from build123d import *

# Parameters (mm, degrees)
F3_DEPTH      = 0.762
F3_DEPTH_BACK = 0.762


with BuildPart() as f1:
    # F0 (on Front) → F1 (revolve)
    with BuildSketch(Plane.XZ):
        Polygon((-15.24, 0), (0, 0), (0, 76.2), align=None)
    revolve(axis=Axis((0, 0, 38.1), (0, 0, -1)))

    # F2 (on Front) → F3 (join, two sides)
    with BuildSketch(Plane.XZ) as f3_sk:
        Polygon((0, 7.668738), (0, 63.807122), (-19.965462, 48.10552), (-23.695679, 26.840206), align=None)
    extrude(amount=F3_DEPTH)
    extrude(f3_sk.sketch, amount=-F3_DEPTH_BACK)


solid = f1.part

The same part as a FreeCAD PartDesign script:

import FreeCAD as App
import Part
import Sketcher

V = App.Vector
Q = App.Units.Quantity


def add_polygon(sketch, points):
    """Adds a closed chain of lines whose ends are joined by coincident constraints."""
    first, n = sketch.GeometryCount, len(points)
    for a, b in zip(points, points[1:] + points[:1]):
        sketch.addGeometry(Part.LineSegment(App.Vector(*a, 0), App.Vector(*b, 0)), False)
    for i in range(n):
        sketch.addConstraint(Sketcher.Constraint("Coincident", first + i, 2, first + (i + 1) % n, 1))

doc = App.newDocument("Part")
body = doc.addObject("PartDesign::Body", "Body")

# Sketch on XZ plane
sketch1 = doc.addObject("Sketcher::SketchObject", "Sketch")
body.addObject(sketch1)
sketch1.AttachmentSupport = (doc.XZ_Plane, [""])
sketch1.MapMode = "FlatFace"
add_polygon(sketch1, [(-15, 0), (0, 0), (0, 76)])  # lines 0-2
sketch1.addConstraint([
    Sketcher.Constraint("Horizontal", 0),
    Sketcher.Constraint("Vertical", 1),
    Sketcher.Constraint("Coincident", 0, 2, -1, 1),
    Sketcher.Constraint("DistanceY", 1, 1, 1, 2, Q("3 in")),
    Sketcher.Constraint("DistanceX", 0, 1, 0, 2, Q("0.6 in")),
])
revolution = doc.addObject("PartDesign::Revolution", "Revolution")
body.addObject(revolution)
revolution.Profile = sketch1
revolution.ReferenceAxis = (sketch1, ["V_Axis"])
revolution.Angle = 360

# Sketch on XZ plane
sketch2 = doc.addObject("Sketcher::SketchObject", "Sketch001")
body.addObject(sketch2)
sketch2.AttachmentSupport = (doc.XZ_Plane, [""])
sketch2.MapMode = "FlatFace"
add_polygon(sketch2, [(0, 8), (0, 64), (-20, 48), (-24, 27)])  # lines 0-3
sketch2.addConstraint([
    Sketcher.Constraint("Vertical", 0),
    Sketcher.Constraint("PointOnObject", 0, 2, -2),
    Sketcher.Constraint("Distance", 1, Q("1 in")),
    Sketcher.Constraint("Distance", 3, Q("1.2 in")),
    Sketcher.Constraint("Distance", 2, Q("0.85 in")),
    Sketcher.Constraint("DistanceY", 0, 1, 0, 2, 56.138384),
    Sketcher.Constraint("DistanceX", 1, 2, -1, 1, 19.965462),
    Sketcher.Constraint("DistanceY", -1, 1, 1, 2, 48.10552),
])
pad1 = doc.addObject("PartDesign::Pad", "Pad")
body.addObject(pad1)
pad1.Profile = sketch2
pad1.Type = "TwoLengths"
pad1.Length = Q("0.03 in")
pad1.Length2 = Q("0.03 in")

doc.recompute()
